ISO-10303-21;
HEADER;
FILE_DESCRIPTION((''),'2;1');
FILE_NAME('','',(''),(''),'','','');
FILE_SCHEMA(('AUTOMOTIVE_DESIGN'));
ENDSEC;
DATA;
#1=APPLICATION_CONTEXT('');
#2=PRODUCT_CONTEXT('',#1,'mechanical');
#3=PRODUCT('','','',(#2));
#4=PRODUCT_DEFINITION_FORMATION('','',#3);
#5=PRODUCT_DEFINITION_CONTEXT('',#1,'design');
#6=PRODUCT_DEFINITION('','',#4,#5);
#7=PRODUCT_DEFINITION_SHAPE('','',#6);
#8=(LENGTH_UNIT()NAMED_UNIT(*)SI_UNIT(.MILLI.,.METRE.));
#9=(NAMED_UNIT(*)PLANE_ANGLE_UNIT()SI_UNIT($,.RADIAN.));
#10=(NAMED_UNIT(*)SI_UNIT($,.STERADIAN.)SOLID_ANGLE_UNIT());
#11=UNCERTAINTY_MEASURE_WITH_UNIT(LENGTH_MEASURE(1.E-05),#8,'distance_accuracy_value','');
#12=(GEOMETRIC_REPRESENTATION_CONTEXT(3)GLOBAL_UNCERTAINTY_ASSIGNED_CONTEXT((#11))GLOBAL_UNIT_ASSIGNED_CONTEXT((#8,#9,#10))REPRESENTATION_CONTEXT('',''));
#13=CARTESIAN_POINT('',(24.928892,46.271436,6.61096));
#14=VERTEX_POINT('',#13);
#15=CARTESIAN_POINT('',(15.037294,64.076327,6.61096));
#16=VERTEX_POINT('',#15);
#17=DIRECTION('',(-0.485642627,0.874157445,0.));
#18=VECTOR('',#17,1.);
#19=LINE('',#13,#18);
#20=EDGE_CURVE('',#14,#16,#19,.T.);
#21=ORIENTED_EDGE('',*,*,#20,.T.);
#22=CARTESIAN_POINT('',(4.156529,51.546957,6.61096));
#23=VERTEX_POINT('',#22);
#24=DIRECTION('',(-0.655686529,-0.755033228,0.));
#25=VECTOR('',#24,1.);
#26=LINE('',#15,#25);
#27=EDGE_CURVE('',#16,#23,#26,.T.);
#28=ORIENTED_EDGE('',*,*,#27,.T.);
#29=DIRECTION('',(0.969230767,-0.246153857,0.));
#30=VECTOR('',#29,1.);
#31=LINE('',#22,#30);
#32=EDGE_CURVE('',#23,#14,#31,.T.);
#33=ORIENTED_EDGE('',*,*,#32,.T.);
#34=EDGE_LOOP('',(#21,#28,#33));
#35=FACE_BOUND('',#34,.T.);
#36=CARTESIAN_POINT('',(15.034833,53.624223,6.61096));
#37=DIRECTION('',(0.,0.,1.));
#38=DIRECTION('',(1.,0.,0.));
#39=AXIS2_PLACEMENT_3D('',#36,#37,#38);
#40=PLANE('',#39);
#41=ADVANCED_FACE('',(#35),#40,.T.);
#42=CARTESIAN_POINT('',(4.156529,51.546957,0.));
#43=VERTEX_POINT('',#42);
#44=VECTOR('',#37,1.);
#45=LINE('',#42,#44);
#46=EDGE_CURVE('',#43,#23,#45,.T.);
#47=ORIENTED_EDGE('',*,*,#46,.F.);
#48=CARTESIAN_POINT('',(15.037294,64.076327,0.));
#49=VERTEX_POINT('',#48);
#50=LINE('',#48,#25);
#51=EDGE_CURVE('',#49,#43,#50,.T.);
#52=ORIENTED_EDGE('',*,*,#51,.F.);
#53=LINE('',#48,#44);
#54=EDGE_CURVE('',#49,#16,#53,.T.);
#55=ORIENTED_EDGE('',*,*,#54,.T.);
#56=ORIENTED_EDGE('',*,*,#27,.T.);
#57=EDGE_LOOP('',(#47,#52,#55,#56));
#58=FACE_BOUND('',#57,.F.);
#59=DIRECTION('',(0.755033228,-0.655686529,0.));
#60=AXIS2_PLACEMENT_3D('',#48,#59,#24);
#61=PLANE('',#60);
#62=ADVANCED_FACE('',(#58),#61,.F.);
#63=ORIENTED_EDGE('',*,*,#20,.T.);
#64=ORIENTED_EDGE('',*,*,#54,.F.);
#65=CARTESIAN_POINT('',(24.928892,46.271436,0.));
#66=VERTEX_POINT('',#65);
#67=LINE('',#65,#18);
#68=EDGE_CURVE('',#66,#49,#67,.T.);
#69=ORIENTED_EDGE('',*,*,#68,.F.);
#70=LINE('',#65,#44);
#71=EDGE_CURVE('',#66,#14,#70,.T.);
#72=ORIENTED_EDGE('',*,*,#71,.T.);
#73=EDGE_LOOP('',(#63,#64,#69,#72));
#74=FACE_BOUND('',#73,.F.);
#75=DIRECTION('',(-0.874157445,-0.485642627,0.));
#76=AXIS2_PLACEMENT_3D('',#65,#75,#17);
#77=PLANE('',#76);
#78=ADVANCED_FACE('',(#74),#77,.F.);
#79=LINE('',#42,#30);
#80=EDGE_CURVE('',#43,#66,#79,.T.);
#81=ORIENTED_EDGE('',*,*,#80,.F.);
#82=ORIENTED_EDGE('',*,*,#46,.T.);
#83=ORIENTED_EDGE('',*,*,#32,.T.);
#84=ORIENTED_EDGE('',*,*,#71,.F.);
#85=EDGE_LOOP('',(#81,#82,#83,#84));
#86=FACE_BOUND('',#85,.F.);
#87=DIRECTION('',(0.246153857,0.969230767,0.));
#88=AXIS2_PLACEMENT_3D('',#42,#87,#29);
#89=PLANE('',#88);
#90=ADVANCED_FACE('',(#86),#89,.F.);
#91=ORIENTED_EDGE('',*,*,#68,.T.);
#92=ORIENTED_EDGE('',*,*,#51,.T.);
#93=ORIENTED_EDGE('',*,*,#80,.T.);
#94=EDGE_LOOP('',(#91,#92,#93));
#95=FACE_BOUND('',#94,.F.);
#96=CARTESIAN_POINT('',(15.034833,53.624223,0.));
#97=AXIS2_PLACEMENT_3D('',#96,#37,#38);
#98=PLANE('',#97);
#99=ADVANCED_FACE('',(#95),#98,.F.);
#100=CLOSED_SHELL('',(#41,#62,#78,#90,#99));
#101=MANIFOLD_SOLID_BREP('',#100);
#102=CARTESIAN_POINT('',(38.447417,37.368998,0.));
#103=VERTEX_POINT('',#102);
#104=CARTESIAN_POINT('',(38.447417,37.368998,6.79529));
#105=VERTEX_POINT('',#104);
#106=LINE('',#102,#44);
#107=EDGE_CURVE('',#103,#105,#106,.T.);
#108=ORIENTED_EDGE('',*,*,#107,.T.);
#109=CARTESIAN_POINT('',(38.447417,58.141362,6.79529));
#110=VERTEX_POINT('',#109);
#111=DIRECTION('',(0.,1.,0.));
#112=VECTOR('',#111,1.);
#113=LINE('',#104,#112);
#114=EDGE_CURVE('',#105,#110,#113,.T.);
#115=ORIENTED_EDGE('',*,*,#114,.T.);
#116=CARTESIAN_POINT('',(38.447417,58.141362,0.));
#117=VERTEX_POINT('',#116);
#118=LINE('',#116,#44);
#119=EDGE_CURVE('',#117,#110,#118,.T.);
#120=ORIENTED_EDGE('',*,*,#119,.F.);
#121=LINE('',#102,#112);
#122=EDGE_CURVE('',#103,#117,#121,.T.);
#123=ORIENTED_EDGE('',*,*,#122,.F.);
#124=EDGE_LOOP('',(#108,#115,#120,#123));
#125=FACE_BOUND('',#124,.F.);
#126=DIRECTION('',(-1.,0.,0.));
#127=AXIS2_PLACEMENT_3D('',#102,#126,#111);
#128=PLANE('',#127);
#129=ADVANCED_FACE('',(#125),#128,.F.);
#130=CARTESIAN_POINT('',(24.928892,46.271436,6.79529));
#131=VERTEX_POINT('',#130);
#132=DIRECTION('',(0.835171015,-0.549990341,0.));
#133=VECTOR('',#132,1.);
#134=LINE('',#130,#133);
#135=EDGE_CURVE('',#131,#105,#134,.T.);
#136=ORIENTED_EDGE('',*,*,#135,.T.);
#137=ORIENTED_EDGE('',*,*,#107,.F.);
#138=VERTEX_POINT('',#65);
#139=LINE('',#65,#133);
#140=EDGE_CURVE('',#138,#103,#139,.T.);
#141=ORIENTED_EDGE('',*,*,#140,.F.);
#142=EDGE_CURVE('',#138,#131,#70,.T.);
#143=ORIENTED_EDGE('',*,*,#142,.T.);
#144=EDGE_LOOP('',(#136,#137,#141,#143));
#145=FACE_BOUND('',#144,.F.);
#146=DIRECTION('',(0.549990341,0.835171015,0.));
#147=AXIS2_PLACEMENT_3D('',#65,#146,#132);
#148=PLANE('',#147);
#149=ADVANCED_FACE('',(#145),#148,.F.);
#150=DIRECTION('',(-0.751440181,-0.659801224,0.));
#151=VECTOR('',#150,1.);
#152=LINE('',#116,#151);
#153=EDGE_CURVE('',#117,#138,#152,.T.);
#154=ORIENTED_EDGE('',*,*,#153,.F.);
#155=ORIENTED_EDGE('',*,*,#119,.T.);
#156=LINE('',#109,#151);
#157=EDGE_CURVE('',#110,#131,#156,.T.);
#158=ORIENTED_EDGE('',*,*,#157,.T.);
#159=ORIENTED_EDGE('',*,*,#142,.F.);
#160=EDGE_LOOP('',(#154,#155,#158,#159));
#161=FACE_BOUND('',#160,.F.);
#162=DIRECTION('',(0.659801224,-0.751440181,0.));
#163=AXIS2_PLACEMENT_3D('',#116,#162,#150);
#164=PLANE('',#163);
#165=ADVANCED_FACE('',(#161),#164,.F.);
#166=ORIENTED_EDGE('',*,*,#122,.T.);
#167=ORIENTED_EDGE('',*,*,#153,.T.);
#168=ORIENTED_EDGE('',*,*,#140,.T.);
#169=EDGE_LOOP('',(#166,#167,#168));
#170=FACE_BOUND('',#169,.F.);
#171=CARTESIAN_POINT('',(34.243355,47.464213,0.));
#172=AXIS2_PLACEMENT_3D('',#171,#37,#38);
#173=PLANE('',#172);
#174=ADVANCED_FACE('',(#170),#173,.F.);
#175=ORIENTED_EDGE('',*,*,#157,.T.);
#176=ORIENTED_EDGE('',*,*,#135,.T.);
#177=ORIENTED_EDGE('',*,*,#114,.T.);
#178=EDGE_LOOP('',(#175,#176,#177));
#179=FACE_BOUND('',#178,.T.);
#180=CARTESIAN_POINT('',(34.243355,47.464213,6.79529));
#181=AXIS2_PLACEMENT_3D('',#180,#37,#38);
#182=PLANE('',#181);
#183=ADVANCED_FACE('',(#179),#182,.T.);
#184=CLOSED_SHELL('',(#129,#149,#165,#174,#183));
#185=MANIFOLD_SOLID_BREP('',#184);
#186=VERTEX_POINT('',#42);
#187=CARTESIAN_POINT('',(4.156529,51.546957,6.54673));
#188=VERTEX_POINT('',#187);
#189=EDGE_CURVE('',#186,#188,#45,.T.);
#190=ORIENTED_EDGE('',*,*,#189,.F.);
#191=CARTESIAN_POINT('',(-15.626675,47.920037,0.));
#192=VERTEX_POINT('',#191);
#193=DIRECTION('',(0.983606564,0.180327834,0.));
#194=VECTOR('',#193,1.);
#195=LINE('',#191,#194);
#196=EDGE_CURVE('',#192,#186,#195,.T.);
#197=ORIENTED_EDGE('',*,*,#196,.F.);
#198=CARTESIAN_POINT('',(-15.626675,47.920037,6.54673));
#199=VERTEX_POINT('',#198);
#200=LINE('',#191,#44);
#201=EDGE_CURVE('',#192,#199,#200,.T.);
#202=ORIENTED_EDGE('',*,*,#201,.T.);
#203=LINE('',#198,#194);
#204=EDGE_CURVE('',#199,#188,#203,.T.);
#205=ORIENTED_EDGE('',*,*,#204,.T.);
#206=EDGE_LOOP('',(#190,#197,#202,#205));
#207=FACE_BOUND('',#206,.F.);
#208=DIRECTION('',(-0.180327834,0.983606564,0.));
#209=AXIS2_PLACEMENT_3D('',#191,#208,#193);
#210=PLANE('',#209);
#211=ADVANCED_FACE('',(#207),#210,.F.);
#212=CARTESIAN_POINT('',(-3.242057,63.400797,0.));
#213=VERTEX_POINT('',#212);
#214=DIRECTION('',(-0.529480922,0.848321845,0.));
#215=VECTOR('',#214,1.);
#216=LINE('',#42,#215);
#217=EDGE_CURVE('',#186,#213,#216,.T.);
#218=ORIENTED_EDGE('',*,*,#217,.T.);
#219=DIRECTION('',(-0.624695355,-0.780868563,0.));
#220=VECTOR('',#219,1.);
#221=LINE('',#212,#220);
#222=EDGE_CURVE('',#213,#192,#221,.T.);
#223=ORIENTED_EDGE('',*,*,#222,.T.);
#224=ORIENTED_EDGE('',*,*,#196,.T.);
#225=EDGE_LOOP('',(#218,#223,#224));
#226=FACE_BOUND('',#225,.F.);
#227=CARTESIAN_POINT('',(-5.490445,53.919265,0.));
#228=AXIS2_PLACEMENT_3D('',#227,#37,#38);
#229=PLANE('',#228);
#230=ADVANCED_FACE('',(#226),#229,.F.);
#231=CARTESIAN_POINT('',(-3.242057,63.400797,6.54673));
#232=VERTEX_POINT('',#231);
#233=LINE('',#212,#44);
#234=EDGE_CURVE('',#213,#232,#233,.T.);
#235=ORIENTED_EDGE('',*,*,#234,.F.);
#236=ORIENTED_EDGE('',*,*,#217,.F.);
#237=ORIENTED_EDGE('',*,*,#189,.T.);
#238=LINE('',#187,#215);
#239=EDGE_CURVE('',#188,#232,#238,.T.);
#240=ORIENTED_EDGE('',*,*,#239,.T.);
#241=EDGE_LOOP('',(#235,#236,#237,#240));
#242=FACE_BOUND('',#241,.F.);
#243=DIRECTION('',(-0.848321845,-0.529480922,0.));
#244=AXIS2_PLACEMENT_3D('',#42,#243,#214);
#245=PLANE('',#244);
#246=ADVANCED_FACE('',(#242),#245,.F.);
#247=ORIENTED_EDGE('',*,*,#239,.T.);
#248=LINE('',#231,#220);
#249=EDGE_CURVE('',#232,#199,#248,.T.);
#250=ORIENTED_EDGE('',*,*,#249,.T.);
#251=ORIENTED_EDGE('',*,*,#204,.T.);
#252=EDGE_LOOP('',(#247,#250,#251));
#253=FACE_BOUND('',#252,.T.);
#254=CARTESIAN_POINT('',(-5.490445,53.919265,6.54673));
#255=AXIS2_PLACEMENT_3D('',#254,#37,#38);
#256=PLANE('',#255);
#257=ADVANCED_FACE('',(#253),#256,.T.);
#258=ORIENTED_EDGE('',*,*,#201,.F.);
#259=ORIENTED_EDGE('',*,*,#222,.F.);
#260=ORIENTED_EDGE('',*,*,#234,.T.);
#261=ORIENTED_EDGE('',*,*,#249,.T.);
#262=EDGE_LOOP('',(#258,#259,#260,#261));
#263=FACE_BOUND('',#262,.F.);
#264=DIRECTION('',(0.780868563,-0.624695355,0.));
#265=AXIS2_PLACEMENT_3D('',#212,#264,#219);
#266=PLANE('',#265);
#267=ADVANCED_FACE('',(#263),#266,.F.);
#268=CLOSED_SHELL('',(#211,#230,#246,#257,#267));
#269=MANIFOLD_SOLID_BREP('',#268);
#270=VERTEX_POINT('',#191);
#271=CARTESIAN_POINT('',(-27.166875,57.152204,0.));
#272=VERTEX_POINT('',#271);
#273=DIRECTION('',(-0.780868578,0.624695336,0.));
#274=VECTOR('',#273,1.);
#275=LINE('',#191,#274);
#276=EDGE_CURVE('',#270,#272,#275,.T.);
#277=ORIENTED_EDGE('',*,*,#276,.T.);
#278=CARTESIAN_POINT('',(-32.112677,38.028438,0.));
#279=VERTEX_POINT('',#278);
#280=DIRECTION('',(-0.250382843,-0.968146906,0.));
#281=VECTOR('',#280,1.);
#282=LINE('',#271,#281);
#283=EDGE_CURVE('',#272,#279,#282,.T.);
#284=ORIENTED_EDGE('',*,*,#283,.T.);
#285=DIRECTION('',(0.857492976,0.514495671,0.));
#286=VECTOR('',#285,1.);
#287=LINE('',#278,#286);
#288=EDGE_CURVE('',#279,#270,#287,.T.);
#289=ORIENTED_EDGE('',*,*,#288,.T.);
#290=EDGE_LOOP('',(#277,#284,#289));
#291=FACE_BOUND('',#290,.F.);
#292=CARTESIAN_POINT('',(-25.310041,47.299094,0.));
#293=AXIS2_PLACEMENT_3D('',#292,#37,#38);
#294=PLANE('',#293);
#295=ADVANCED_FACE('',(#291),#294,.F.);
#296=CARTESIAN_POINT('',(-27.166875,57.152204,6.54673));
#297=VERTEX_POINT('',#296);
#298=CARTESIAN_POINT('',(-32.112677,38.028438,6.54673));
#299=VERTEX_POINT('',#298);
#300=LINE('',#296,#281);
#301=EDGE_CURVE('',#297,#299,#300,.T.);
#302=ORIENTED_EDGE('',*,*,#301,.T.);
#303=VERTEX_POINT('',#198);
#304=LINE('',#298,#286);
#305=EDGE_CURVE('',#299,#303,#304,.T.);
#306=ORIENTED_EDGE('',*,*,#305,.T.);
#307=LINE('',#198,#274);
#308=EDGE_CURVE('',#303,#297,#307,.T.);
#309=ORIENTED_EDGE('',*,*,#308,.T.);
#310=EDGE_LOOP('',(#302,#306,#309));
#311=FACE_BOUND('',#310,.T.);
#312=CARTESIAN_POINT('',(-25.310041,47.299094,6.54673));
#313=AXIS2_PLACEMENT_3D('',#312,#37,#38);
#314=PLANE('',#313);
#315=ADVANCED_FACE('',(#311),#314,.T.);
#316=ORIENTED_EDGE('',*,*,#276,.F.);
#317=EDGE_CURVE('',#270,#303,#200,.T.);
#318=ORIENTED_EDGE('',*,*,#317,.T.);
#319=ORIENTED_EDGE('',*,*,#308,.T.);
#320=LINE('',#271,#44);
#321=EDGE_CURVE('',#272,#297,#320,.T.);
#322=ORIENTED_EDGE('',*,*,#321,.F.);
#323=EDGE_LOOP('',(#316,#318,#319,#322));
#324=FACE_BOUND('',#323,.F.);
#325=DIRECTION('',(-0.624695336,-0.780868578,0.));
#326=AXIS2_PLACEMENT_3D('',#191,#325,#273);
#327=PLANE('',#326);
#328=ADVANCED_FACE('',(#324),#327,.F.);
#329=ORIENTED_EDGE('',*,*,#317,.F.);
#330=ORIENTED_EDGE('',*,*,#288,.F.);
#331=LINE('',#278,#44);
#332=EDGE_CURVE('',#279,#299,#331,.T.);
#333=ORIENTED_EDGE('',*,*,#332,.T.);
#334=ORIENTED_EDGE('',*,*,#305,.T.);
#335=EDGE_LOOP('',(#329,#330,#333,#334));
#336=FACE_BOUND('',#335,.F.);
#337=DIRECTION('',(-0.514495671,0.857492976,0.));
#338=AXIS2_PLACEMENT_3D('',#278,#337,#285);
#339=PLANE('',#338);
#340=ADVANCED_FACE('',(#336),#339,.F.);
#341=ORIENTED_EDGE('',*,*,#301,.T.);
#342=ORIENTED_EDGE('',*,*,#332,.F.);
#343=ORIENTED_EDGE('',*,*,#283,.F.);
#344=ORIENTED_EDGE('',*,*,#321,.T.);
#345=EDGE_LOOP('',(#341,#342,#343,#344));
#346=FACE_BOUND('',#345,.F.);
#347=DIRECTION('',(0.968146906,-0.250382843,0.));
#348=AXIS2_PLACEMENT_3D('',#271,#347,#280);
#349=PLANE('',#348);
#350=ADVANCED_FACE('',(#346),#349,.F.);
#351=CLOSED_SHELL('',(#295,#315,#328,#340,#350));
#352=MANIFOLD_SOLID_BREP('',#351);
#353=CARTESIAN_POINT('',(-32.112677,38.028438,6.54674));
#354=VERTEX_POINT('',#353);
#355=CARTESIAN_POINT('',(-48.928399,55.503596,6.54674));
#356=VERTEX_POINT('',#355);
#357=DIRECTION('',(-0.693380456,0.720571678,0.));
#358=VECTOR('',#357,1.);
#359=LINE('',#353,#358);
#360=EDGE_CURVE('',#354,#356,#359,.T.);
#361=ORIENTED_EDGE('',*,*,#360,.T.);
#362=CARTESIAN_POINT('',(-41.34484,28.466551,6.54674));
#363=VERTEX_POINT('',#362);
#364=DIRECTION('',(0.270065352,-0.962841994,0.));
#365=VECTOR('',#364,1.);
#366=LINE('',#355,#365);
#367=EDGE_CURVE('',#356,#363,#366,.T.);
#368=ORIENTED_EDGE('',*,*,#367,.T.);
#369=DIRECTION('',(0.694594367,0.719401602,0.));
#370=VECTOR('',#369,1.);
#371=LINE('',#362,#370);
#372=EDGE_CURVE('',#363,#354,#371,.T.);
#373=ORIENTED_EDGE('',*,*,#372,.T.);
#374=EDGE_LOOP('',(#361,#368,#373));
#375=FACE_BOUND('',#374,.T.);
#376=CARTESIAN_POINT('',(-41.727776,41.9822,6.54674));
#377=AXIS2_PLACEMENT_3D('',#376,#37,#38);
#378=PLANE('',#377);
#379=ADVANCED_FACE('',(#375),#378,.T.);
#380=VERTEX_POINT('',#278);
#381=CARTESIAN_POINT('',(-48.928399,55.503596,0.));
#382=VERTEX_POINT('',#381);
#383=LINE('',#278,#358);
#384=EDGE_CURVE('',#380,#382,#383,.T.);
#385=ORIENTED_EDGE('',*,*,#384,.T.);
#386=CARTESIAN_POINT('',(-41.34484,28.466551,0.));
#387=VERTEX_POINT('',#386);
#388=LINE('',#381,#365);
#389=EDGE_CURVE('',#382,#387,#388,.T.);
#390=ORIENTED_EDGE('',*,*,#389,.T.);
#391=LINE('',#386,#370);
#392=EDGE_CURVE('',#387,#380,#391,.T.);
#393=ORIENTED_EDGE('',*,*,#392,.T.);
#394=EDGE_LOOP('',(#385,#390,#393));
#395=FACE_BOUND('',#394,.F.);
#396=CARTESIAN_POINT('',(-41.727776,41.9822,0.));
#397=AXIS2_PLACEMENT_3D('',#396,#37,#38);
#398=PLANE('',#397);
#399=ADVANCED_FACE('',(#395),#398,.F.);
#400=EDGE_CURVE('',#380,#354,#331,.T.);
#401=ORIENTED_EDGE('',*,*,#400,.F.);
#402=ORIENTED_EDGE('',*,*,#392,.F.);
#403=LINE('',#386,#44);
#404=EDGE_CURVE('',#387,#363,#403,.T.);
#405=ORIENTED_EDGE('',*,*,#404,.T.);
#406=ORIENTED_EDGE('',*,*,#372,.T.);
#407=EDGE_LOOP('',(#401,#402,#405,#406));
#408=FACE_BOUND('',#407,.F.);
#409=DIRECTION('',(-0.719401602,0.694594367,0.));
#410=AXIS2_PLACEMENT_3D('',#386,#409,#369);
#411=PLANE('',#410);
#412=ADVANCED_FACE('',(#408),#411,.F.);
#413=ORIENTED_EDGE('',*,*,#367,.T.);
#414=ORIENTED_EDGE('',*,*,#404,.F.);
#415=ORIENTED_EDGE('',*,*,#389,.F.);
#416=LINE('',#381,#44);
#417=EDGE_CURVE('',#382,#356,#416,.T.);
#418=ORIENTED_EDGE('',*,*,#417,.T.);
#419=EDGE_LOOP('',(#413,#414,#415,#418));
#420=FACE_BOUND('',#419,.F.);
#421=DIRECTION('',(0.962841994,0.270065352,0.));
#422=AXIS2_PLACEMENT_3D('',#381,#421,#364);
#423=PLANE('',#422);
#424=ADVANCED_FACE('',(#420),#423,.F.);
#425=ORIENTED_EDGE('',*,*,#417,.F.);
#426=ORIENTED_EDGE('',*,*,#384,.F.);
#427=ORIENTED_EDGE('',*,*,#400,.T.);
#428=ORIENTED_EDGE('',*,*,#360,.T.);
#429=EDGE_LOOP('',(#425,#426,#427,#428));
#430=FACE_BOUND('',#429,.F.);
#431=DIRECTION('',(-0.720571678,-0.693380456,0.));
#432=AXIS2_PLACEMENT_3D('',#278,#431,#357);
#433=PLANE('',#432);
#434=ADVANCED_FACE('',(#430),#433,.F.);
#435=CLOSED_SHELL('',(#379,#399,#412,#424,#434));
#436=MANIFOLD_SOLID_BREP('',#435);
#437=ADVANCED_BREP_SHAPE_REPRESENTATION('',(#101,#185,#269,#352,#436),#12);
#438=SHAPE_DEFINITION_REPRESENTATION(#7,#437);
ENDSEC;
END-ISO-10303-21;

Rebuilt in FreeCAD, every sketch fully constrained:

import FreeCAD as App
import Part
import Sketcher
from FreeCAD import Vector
Q = App.Units.Quantity

doc = App.newDocument("Part")
body = doc.addObject("PartDesign::Body", "Body")

sketch1 = body.newObject("Sketcher::SketchObject", "Sketch")
sketch1.AttachmentSupport = (doc.getObject("XY_Plane"), [""])
sketch1.MapMode = "FlatFace"
sketch1.addGeometry(Part.LineSegment(Vector(-49, 56, 0), Vector(-41, 28, 0)), False)
sketch1.addGeometry(Part.LineSegment(Vector(-41, 28, 0), Vector(-32, 38, 0)), False)
sketch1.addGeometry(Part.LineSegment(Vector(-32, 38, 0), Vector(-49, 56, 0)), False)
sketch1.addConstraint(Sketcher.Constraint("Coincident", 0, 2, 1, 1))
sketch1.addConstraint(Sketcher.Constraint("Coincident", 1, 2, 2, 1))
sketch1.addConstraint(Sketcher.Constraint("Coincident", 2, 2, 0, 1))
sketch1.addConstraint(Sketcher.Constraint("DistanceX", 2, 2, -1, 1, Q("48.928399 mm")))
sketch1.addConstraint(Sketcher.Constraint("Distance", 0, Q("28.080459 mm")))
sketch1.addConstraint(Sketcher.Constraint("DistanceX", 0, 2, -1, 1, Q("41.34484 mm")))
sketch1.addConstraint(Sketcher.Constraint("DistanceY", -1, 1, 0, 2, Q("28.466551 mm")))
sketch1.addConstraint(Sketcher.Constraint("DistanceY", 1, 2, 2, 2, Q("17.475158 mm")))
sketch1.addConstraint(Sketcher.Constraint("Distance", 1, Q("13.291445 mm")))
pad1 = body.newObject("PartDesign::Pad", "Pad")
pad1.Profile = sketch1
pad1.Length = 6.54674
body2 = doc.addObject("PartDesign::Body", "Body001")

sketch2 = body2.newObject("Sketcher::SketchObject", "Sketch001")
sketch2.AttachmentSupport = (doc.getObject("XY_Plane001"), [""])
sketch2.MapMode = "FlatFace"
sketch2.addGeometry(Part.LineSegment(Vector(-27, 57, 0), Vector(-32, 38, 0)), False)
sketch2.addGeometry(Part.LineSegment(Vector(-32, 38, 0), Vector(-16, 48, 0)), False)
sketch2.addGeometry(Part.LineSegment(Vector(-16, 48, 0), Vector(-27, 57, 0)), False)
sketch2.addConstraint(Sketcher.Constraint("Coincident", 0, 2, 1, 1))
sketch2.addConstraint(Sketcher.Constraint("Coincident", 1, 2, 2, 1))
sketch2.addConstraint(Sketcher.Constraint("Coincident", 2, 2, 0, 1))
sketch2.addConstraint(Sketcher.Constraint("DistanceX", 0, 2, 1, 2, Q("16.486002 mm")))
sketch2.addConstraint(Sketcher.Constraint("DistanceY", 0, 2, 1, 2, Q("9.891599 mm")))
sketch2.addConstraint(Sketcher.Constraint("DistanceX", 2, 2, 1, 2, Q("11.5402 mm")))
sketch2.addConstraint(Sketcher.Constraint("Distance", 0, Q("19.752959 mm")))
sketch2.addConstraint(Sketcher.Constraint("DistanceX", 0, 2, -1, 1, Q("32.112677 mm")))
sketch2.addConstraint(Sketcher.Constraint("DistanceY", -1, 1, 0, 2, Q("38.028438 mm")))
pad2 = body2.newObject("PartDesign::Pad", "Pad001")
pad2.Profile = sketch2
pad2.Length = 6.54673
body3 = doc.addObject("PartDesign::Body", "Body002")

sketch3 = body3.newObject("Sketcher::SketchObject", "Sketch002")
sketch3.AttachmentSupport = (doc.getObject("XY_Plane002"), [""])
sketch3.MapMode = "FlatFace"
sketch3.addGeometry(Part.LineSegment(Vector(-3, 63, 0), Vector(-16, 48, 0)), False)
sketch3.addGeometry(Part.LineSegment(Vector(-16, 48, 0), Vector(4, 52, 0)), False)
sketch3.addGeometry(Part.LineSegment(Vector(4, 52, 0), Vector(-3, 63, 0)), False)
sketch3.addConstraint(Sketcher.Constraint("Coincident", 0, 2, 1, 1))
sketch3.addConstraint(Sketcher.Constraint("Coincident", 1, 2, 2, 1))
sketch3.addConstraint(Sketcher.Constraint("Coincident", 2, 2, 0, 1))
sketch3.addConstraint(Sketcher.Constraint("Distance", 2, Q("13.973282 mm")))
sketch3.addConstraint(Sketcher.Constraint("DistanceX", -1, 1, 1, 2, Q("4.156529 mm")))
sketch3.addConstraint(Sketcher.Constraint("DistanceY", 0, 2, 1, 2, Q("3.62692 mm")))
sketch3.addConstraint(Sketcher.Constraint("DistanceY", 1, 2, 2, 2, Q("11.85384 mm")))
sketch3.addConstraint(Sketcher.Constraint("Distance", 0, Q("19.825052 mm")))
sketch3.addConstraint(Sketcher.Constraint("DistanceY", -1, 1, 0, 2, Q("47.920037 mm")))
pad3 = body3.newObject("PartDesign::Pad", "Pad002")
pad3.Profile = sketch3
pad3.Length = 6.54673
body4 = doc.addObject("PartDesign::Body", "Body003")

sketch4 = body4.newObject("Sketcher::SketchObject", "Sketch003")
sketch4.AttachmentSupport = (doc.getObject("XY_Plane003"), [""])
sketch4.MapMode = "FlatFace"
sketch4.addGeometry(Part.LineSegment(Vector(15, 64, 0), Vector(4, 52, 0)), False)
sketch4.addGeometry(Part.LineSegment(Vector(4, 52, 0), Vector(25, 46, 0)), False)
sketch4.addGeometry(Part.LineSegment(Vector(25, 46, 0), Vector(15, 64, 0)), False)
sketch4.addConstraint(Sketcher.Constraint("Coincident", 0, 2, 1, 1))
sketch4.addConstraint(Sketcher.Constraint("Coincident", 1, 2, 2, 1))
sketch4.addConstraint(Sketcher.Constraint("Coincident", 2, 2, 0, 1))
sketch4.addConstraint(Sketcher.Constraint("DistanceX", 2, 2, 1, 2, Q("9.891598 mm")))
sketch4.addConstraint(Sketcher.Constraint("Distance", 0, Q("16.594462 mm")))
sketch4.addConstraint(Sketcher.Constraint("Distance", 2, Q("20.36806 mm")))
sketch4.addConstraint(Sketcher.Constraint("DistanceX", -1, 1, 0, 2, Q("4.156529 mm")))
sketch4.addConstraint(Sketcher.Constraint("DistanceY", 1, 2, 0, 2, Q("5.275521 mm")))
sketch4.addConstraint(Sketcher.Constraint("DistanceY", -1, 1, 0, 2, Q("51.546957 mm")))
pad4 = body4.newObject("PartDesign::Pad", "Pad003")
pad4.Profile = sketch4
pad4.Length = 6.61096
body5 = doc.addObject("PartDesign::Body", "Body004")

sketch5 = body5.newObject("Sketcher::SketchObject", "Sketch004")
sketch5.AttachmentSupport = (doc.getObject("XY_Plane004"), [""])
sketch5.MapMode = "FlatFace"
sketch5.addGeometry(Part.LineSegment(Vector(38, 58, 0), Vector(25, 46, 0)), False)
sketch5.addGeometry(Part.LineSegment(Vector(25, 46, 0), Vector(38, 37, 0)), False)
sketch5.addGeometry(Part.LineSegment(Vector(38, 37, 0), Vector(38, 58, 0)), False)
sketch5.addConstraint(Sketcher.Constraint("Coincident", 0, 2, 1, 1))
sketch5.addConstraint(Sketcher.Constraint("Coincident", 1, 2, 2, 1))
sketch5.addConstraint(Sketcher.Constraint("Coincident", 2, 2, 0, 1))
sketch5.addConstraint(Sketcher.Constraint("Vertical", 2))
sketch5.addConstraint(Sketcher.Constraint("DistanceY", 2, 1, 2, 2, Q("20.772364 mm")))
sketch5.addConstraint(Sketcher.Constraint("DistanceY", 1, 2, 0, 2, Q("8.902438 mm")))
sketch5.addConstraint(Sketcher.Constraint("Distance", 0, Q("17.990155 mm")))
sketch5.addConstraint(Sketcher.Constraint("DistanceX", -1, 1, 0, 2, Q("24.928892 mm")))
sketch5.addConstraint(Sketcher.Constraint("DistanceY", -1, 1, 0, 2, Q("46.271436 mm")))
pad5 = body5.newObject("PartDesign::Pad", "Pad004")
pad5.Profile = sketch5
pad5.Length = 6.79529

doc.recompute()
